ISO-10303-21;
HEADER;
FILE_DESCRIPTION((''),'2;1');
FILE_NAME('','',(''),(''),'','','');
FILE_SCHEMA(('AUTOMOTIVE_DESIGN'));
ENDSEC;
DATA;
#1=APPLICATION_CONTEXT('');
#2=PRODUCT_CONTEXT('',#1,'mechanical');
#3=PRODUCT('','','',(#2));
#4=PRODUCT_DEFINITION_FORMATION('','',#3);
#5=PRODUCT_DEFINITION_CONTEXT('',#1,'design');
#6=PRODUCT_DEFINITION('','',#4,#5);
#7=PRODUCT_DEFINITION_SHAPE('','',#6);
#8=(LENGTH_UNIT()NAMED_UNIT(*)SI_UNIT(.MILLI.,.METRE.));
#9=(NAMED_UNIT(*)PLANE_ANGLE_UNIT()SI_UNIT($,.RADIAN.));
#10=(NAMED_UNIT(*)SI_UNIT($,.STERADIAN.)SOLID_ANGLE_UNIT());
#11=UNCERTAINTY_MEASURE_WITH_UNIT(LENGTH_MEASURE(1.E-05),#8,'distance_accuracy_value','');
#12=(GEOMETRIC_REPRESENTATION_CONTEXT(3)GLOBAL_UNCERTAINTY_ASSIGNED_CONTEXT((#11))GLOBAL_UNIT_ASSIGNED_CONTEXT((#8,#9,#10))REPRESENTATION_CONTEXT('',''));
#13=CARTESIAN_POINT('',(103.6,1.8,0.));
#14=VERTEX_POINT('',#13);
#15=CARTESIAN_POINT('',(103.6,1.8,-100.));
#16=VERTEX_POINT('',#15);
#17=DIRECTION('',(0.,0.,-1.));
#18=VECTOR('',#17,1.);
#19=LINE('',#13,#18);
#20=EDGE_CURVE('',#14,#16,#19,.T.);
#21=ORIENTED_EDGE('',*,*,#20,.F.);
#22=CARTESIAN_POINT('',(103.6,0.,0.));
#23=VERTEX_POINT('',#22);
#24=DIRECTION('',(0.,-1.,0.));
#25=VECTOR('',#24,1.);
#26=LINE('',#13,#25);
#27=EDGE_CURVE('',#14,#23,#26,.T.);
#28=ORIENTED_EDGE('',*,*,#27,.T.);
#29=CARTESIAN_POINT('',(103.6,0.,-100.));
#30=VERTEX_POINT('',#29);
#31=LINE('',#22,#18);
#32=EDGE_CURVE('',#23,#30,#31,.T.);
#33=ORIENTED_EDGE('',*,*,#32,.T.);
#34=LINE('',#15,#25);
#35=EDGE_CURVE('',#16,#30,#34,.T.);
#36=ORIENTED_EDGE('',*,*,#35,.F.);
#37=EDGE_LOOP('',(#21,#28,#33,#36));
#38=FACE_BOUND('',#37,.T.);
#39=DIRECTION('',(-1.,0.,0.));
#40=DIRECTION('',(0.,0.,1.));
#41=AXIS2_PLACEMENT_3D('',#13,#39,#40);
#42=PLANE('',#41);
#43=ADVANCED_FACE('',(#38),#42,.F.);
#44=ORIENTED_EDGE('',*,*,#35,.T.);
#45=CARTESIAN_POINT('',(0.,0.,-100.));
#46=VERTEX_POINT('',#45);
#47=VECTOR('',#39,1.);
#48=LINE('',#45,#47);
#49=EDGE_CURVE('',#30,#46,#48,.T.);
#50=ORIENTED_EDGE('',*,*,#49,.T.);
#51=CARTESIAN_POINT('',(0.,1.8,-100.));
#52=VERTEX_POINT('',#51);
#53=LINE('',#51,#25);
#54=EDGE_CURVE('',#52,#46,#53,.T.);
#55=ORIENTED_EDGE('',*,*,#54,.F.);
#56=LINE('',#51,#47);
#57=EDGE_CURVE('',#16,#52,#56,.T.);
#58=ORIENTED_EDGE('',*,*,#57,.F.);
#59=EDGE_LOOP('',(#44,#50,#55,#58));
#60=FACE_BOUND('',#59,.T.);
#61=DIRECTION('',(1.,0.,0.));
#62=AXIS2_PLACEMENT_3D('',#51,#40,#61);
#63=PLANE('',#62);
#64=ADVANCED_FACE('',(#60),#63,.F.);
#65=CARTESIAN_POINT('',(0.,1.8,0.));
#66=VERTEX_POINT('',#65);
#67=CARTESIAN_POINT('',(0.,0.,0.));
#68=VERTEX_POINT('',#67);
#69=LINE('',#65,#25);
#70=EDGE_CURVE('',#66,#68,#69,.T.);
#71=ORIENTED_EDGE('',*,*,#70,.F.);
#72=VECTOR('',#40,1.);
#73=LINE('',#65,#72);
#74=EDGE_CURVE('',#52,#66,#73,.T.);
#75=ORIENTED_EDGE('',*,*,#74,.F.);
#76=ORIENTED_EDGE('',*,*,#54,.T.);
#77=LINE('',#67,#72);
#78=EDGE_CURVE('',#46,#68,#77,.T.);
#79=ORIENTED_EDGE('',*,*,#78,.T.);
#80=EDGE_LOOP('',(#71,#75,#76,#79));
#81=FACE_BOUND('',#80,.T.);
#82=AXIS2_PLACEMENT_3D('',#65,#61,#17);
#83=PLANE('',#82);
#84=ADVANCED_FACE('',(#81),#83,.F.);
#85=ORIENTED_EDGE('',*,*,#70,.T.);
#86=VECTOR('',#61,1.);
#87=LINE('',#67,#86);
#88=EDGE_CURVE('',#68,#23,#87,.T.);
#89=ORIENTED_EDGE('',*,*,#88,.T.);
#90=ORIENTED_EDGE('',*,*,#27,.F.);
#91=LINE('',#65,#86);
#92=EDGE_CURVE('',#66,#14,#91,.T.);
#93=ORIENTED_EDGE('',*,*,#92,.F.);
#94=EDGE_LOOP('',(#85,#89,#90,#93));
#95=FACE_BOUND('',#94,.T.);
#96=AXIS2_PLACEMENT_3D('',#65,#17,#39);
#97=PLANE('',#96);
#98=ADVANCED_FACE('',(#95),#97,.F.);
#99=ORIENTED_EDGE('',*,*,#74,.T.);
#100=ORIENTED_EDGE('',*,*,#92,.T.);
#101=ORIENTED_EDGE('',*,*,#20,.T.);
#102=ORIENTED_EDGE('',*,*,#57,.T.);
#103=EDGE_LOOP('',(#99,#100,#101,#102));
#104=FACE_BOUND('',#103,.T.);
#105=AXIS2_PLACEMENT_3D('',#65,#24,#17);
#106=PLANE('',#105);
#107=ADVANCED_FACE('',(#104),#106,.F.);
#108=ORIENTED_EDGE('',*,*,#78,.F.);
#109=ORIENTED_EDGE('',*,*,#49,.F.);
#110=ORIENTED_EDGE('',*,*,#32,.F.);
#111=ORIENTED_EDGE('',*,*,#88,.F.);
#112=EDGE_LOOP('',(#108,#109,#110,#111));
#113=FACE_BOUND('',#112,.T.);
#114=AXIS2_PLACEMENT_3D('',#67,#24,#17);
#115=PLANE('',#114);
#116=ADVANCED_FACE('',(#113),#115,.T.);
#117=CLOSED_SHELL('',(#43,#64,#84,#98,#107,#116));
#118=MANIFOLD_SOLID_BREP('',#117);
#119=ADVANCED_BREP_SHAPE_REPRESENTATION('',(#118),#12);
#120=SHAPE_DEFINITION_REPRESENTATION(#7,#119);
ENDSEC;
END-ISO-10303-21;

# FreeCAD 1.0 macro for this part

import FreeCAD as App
import Part
import Sketcher
from FreeCAD import Vector
Q = App.Units.Quantity

doc = App.newDocument("Part")
body = doc.addObject("PartDesign::Body", "Body")

sketch1 = body.newObject("Sketcher::SketchObject", "Sketch")
sketch1.AttachmentSupport = (doc.getObject("XZ_Plane"), [""])
sketch1.MapMode = "FlatFace"
sketch1.addGeometry([
    Part.LineSegment(Vector(0, -100, 0), Vector(0, 0, 0)),
    Part.LineSegment(Vector(0, 0, 0), Vector(103.6, 0, 0)),
    Part.LineSegment(Vector(103.6, 0, 0), Vector(103.6, -100, 0)),
    Part.LineSegment(Vector(103.6, -100, 0), Vector(0, -100, 0)),
], False)
sketch1.addConstraint([
    Sketcher.Constraint("Coincident", 0, 2, 1, 1),
    Sketcher.Constraint("Coincident", 1, 2, 2, 1),
    Sketcher.Constraint("Coincident", 2, 2, 3, 1),
    Sketcher.Constraint("Coincident", 3, 2, 0, 1),
    Sketcher.Constraint("Vertical", 0),
    Sketcher.Constraint("Horizontal", 1),
    Sketcher.Constraint("Vertical", 2),
    Sketcher.Constraint("Horizontal", 3),
    Sketcher.Constraint("Coincident", 0, 2, -1, 1),
    Sketcher.Constraint("DistanceY", 0, 1, 0, 2, Q("100 mm")),
    Sketcher.Constraint("DistanceX", 1, 1, 1, 2, Q("103.6 mm")),
])
pad1 = body.newObject("PartDesign::Pad", "Pad")
pad1.Profile = sketch1
pad1.Length = 1.8
pad1.Reversed = True

doc.recompute()
